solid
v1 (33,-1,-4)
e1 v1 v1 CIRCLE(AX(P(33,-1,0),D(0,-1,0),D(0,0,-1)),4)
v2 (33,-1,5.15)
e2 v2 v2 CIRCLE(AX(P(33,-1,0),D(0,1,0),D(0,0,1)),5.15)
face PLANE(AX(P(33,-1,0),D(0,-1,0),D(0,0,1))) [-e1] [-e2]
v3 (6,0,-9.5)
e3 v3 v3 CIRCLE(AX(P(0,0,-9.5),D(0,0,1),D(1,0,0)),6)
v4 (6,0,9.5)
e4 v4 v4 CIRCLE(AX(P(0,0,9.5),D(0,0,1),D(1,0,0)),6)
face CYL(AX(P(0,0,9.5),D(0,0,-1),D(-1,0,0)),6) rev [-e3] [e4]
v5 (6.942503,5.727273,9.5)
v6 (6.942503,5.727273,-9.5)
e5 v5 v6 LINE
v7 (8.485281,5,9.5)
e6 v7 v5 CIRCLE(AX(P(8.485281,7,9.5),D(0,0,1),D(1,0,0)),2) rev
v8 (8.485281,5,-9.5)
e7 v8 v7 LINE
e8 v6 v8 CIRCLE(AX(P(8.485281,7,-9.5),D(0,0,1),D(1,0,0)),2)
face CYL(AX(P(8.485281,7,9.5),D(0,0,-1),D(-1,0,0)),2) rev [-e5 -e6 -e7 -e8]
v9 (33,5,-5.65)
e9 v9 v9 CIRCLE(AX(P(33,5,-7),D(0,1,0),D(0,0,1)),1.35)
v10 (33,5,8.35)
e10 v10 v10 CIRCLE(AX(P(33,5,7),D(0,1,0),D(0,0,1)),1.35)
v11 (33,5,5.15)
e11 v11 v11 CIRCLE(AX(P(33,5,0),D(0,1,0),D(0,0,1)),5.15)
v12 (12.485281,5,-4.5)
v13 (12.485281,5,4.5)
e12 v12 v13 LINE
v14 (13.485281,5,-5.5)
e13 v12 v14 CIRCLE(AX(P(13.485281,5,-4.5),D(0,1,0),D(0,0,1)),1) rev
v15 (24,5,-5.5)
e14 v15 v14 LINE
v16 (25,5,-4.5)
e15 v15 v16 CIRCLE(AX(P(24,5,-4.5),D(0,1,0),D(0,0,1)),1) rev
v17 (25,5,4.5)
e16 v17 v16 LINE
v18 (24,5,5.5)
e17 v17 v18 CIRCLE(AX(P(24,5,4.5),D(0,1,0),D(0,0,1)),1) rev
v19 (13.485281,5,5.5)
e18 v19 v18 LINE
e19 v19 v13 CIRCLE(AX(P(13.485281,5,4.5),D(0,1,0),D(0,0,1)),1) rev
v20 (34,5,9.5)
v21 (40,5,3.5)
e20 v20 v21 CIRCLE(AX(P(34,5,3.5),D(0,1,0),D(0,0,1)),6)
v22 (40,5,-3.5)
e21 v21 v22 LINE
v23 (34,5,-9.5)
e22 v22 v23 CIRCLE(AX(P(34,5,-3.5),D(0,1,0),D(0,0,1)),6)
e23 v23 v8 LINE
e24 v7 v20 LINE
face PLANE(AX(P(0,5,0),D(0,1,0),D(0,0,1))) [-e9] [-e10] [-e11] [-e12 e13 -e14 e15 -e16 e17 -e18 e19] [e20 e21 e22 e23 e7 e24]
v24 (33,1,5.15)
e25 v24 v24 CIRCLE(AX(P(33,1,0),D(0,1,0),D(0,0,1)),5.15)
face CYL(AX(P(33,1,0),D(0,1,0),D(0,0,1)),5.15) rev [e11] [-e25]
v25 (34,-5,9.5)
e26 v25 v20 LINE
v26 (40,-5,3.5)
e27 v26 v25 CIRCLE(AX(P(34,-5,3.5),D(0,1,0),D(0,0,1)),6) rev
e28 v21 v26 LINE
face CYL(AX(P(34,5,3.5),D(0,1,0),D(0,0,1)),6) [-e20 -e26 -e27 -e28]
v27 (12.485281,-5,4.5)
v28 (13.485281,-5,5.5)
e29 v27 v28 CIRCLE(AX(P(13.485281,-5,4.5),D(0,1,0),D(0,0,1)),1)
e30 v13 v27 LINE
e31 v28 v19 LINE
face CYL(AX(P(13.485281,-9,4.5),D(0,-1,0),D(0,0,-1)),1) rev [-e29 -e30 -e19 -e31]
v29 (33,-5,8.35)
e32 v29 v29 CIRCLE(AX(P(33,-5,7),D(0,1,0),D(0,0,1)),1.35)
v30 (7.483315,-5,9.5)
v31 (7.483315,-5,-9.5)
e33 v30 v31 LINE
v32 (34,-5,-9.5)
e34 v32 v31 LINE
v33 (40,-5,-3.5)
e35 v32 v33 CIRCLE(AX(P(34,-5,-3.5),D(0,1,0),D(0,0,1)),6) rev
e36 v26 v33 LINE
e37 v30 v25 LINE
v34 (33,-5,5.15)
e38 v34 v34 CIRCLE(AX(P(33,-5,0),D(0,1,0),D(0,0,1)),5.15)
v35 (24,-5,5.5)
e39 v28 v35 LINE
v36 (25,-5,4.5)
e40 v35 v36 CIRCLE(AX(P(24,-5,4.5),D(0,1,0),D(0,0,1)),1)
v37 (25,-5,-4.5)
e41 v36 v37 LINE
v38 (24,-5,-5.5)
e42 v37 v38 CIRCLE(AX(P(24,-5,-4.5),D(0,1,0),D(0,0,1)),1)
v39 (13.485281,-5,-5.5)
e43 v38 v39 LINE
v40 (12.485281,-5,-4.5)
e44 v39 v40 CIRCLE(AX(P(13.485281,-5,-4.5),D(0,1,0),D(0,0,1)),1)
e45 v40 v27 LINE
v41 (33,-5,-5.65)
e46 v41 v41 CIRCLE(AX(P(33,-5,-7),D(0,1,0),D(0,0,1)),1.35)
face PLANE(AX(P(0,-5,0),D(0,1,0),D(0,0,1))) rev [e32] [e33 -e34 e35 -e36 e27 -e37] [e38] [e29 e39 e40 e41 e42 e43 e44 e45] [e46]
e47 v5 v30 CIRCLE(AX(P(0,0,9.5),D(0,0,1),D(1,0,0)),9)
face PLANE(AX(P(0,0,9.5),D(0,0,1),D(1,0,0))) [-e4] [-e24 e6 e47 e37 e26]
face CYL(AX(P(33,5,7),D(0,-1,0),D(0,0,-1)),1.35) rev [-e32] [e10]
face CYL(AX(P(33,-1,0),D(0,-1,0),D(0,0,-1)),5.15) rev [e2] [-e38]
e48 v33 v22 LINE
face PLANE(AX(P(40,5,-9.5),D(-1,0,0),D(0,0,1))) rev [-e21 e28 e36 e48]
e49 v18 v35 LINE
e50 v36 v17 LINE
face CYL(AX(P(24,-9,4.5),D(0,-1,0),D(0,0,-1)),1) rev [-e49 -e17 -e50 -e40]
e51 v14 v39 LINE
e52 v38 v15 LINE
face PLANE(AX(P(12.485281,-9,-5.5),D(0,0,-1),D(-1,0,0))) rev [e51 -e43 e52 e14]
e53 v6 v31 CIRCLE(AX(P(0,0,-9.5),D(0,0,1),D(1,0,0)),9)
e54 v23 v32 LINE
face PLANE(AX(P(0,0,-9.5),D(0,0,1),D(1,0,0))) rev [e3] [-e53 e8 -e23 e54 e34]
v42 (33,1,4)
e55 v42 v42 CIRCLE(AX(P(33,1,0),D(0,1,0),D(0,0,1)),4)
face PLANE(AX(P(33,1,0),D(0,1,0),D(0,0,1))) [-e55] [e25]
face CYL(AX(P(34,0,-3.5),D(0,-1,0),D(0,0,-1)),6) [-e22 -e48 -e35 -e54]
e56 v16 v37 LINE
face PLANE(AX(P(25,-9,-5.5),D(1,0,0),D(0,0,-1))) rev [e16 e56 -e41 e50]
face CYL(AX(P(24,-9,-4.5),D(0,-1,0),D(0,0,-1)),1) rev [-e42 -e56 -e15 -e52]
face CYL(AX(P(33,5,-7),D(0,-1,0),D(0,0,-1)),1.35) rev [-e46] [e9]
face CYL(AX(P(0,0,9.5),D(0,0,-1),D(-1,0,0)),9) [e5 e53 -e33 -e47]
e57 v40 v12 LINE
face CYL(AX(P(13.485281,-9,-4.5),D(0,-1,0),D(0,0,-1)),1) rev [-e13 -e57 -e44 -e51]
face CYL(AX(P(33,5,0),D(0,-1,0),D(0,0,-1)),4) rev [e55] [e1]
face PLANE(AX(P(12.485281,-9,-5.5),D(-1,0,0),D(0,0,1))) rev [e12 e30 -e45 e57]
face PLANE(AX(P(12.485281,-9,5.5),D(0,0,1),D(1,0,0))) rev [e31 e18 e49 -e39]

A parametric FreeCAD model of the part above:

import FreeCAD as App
import Part
import Sketcher

V = App.Vector


def edges_at(feature, points):
    """Names of the edges that pass closest to the given points."""
    edges = feature.Shape.Edges
    near = lambda p: min(range(len(edges)), key=lambda i: edges[i].distToShape(Part.Vertex(*p))[0])
    return sorted({f"Edge{near(p) + 1}" for p in points})

doc = App.newDocument("Part")
body = doc.addObject("PartDesign::Body", "Body")

# Sketch on XY plane
sketch1 = body.newObject("Sketcher::SketchObject", "Sketch")
sketch1.AttachmentSupport = (doc.getObject("XY_Plane"), [""])
sketch1.MapMode = "FlatFace"
sketch1.addGeometry([
    Part.Circle(V(0, 0, 0), V(0, 0, 1), 9),
    Part.Circle(V(0, 0, 0), V(0, 0, 1), 6),
], False)
sketch1.addConstraint([
    Sketcher.Constraint("Coincident", 0, 3, -1, 1),
    Sketcher.Constraint("Coincident", 1, 3, -1, 1),
    Sketcher.Constraint("Diameter", 0, 18.0),
    Sketcher.Constraint("Diameter", 1, 12.0),
])
pad1 = body.newObject("PartDesign::Pad", "Pad")
pad1.Profile = sketch1
pad1.Length = 19
pad1.Midplane = True

# Sketch on XZ plane
sketch2 = body.newObject("Sketcher::SketchObject", "Sketch001")
sketch2.AttachmentSupport = (doc.getObject("XZ_Plane"), [""])
sketch2.MapMode = "FlatFace"
sketch2.addGeometry([
    Part.LineSegment(V(0, -9.5, 0), V(0, 9.5, 0)),  # 0
    Part.LineSegment(V(0, 9.5, 0), V(40, 9.5, 0)),  # 1
    Part.LineSegment(V(40, 9.5, 0), V(40, -9.5, 0)),  # 2
    Part.LineSegment(V(40, -9.5, 0), V(0, -9.5, 0)),  # 3
    Part.Circle(V(33, 7, 0), V(0, 0, 1), 1.4),  # 4
    Part.Circle(V(33, 0, 0), V(0, 0, 1), 4),  # 5
    Part.Circle(V(33, -7, 0), V(0, 0, 1), 1.4),  # 6
], False)
sketch2.addConstraint([
    Sketcher.Constraint("Coincident", 0, 2, 1, 1),
    Sketcher.Constraint("Coincident", 1, 2, 2, 1),
    Sketcher.Constraint("Coincident", 2, 2, 3, 1),
    Sketcher.Constraint("Coincident", 3, 2, 0, 1),
    Sketcher.Constraint("Vertical", 0),
    Sketcher.Constraint("Horizontal", 1),
    Sketcher.Constraint("Vertical", 2),
    Sketcher.Constraint("Horizontal", 3),
    Sketcher.Constraint("Equal", 4, 6),
    Sketcher.Constraint("Symmetric", 0, 2, 3, 2, -1, 1),
    Sketcher.Constraint("Symmetric", 4, 3, 6, 3, -1),
    Sketcher.Constraint("PointOnObject", 5, 3, -1),
    Sketcher.Constraint("Vertical", 4, 3, 5, 3),
    Sketcher.Constraint("Diameter", 5, 8.0),
    Sketcher.Constraint("Diameter", 4, 2.7),
    Sketcher.Constraint("DistanceX", 1, 1, 1, 2, 40.0),
    Sketcher.Constraint("DistanceY", 0, 1, 0, 2, 19.0),
    Sketcher.Constraint("DistanceX", -1, 1, 4, 3, 33.0),
    Sketcher.Constraint("DistanceY", -1, 1, 4, 3, 7.0),
])
pad2 = body.newObject("PartDesign::Pad", "Pad001")
pad2.Profile = sketch2
pad2.Length = 10
pad2.Midplane = True

# Sketch on XZ plane
sketch3 = body.newObject("Sketcher::SketchObject", "Sketch002")
sketch3.AttachmentSupport = (doc.getObject("XZ_Plane"), [""])
sketch3.MapMode = "FlatFace"
sketch3.AttachmentOffset = App.Placement(V(0, 0, -5), App.Rotation())
sketch3.addGeometry(Part.Circle(V(33, 0, 0), V(0, 0, 1), 5), False)
sketch3.addConstraint([
    Sketcher.Constraint("PointOnObject", 0, 3, -1),
    Sketcher.Constraint("Diameter", 0, 10.3),
    Sketcher.Constraint("DistanceX", -1, 1, 0, 3, 33.0),
])
pocket1 = body.newObject("PartDesign::Pocket", "Pocket")
pocket1.Profile = sketch3
pocket1.Length = 4
pocket1.Reversed = True
doc.recompute()

fillet = body.newObject("PartDesign::Fillet", "Fillet")
fillet.Base = (pocket1, edges_at(pocket1, [(7.483, 5, 0)]))
fillet.Radius = 2

# Sketch on XY plane
sketch4 = body.newObject("Sketcher::SketchObject", "Sketch003")
sketch4.AttachmentSupport = (doc.getObject("XY_Plane"), [""])
sketch4.MapMode = "FlatFace"
sketch4.AttachmentOffset = App.Placement(V(0, 0, 9.5), App.Rotation())
sketch4.addGeometry(Part.Circle(V(0, 0, 0), V(0, 0, 1), 6), False)
sketch4.addConstraint([
    Sketcher.Constraint("Coincident", 0, 3, -1, 1),
    Sketcher.Constraint("Diameter", 0, 12.0),
])
pocket2 = body.newObject("PartDesign::Pocket", "Pocket001")
pocket2.Profile = sketch4
pocket2.Type = "ThroughAll"
doc.recompute()

mirrored = body.newObject("PartDesign::Mirrored", "Mirrored")
mirrored.Originals = [pocket1]
mirrored.MirrorPlane = (doc.getObject("XZ_Plane"), [""])
body.Tip = mirrored

# Sketch on XZ plane
sketch5 = body.newObject("Sketcher::SketchObject", "Sketch004")
sketch5.AttachmentSupport = (doc.getObject("XZ_Plane"), [""])
sketch5.MapMode = "FlatFace"
sketch5.AttachmentOffset = App.Placement(V(0, 0, -5), App.Rotation())
sketch5.addGeometry([
    Part.LineSegment(V(12, -6, 0), V(12, 6, 0)),
    Part.LineSegment(V(12, 6, 0), V(25, 6, 0)),
    Part.LineSegment(V(25, 6, 0), V(25, -6, 0)),
    Part.LineSegment(V(25, -6, 0), V(12, -6, 0)),
], False)
sketch5.addConstraint([
    Sketcher.Constraint("Coincident", 0, 2, 1, 1),
    Sketcher.Constraint("Coincident", 1, 2, 2, 1),
    Sketcher.Constraint("Coincident", 2, 2, 3, 1),
    Sketcher.Constraint("Coincident", 3, 2, 0, 1),
    Sketcher.Constraint("Vertical", 0),
    Sketcher.Constraint("Horizontal", 1),
    Sketcher.Constraint("Vertical", 2),
    Sketcher.Constraint("Horizontal", 3),
    Sketcher.Constraint("DistanceY", 0, 1, 0, 2, 11.0),
    Sketcher.Constraint("DistanceX", -1, 1, 1, 2, 25.0),
    Sketcher.Constraint("DistanceY", -1, 1, 0, 2, 5.5),
    Sketcher.Constraint("DistanceX", 1, 1, 1, 2, 12.514719),
])
pocket3 = body.newObject("PartDesign::Pocket", "Pocket002")
pocket3.Profile = sketch5
pocket3.Type = "ThroughAll"
pocket3.Reversed = True
doc.recompute()

fillet2 = body.newObject("PartDesign::Fillet", "Fillet001")
fillet2.Base = (pocket3, edges_at(pocket3, [
    (12.485, 0, 5.5),
    (12.485, 0, -5.5),
    (25, 0, -5.5),
    (25, 0, 5.5),
]))
fillet2.Radius = 1
doc.recompute()

fillet3 = body.newObject("PartDesign::Fillet", "Fillet002")
fillet3.Base = (fillet2, edges_at(fillet2, [(40, 0, 9.5), (40, 0, -9.5)]))
fillet3.Radius = 6

doc.recompute()
